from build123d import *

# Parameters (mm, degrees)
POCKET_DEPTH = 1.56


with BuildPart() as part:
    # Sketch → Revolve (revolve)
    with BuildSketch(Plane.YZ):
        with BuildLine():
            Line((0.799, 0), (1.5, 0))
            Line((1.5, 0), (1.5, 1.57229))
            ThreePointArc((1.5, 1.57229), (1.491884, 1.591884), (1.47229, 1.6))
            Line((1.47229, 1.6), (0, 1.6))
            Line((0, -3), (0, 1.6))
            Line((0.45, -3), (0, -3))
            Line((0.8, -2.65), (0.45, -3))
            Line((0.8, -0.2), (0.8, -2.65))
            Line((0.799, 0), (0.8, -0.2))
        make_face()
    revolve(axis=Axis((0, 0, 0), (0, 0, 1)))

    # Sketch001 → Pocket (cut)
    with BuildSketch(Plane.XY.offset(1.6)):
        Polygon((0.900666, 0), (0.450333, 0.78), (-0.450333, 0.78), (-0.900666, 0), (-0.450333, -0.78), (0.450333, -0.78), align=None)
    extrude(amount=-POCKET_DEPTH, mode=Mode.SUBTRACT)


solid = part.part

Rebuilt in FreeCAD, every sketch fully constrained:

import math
import FreeCAD as App
import Part
import Sketcher

V = App.Vector
Q = App.Units.Quantity

doc = App.newDocument("Part")
body = doc.addObject("PartDesign::Body", "Body")

# Sketch on YZ plane
sketch1 = body.newObject("Sketcher::SketchObject", "Sketch")
sketch1.AttachmentSupport = (doc.getObject("YZ_Plane"), [""])
sketch1.MapMode = "FlatFace"
sketch1.addGeometry([
    Part.LineSegment(V(0.799, 0, 0), V(1.5, 0, 0)),  # 0
    Part.LineSegment(V(1.5, 0, 0), V(1.5, 1.572, 0)),  # 1
    Part.ArcOfCircle(Part.Circle(V(1.472, 1.572, 0), V(0, 0, 1), 0.028), math.radians(0), math.radians(90)),  # 2
    Part.LineSegment(V(1.472, 1.6, 0), V(0, 1.6, 0)),  # 3
    Part.LineSegment(V(0, 1.6, 0), V(0, -3, 0)),  # 4
    Part.LineSegment(V(0, -3, 0), V(0.45, -3, 0)),  # 5
    Part.LineSegment(V(0.45, -3, 0), V(0.8, -2.65, 0)),  # 6
    Part.LineSegment(V(0.8, -2.65, 0), V(0.8, -0.2, 0)),  # 7
    Part.LineSegment(V(0.8, -0.2, 0), V(0.799, 0, 0)),  # 8
], False)
sketch1.addConstraint([
    Sketcher.Constraint("Coincident", 0, 2, 1, 1),
    Sketcher.Constraint("Coincident", 1, 2, 2, 1),
    Sketcher.Constraint("Coincident", 2, 2, 3, 1),
    Sketcher.Constraint("Coincident", 3, 2, 4, 1),
    Sketcher.Constraint("Coincident", 4, 2, 5, 1),
    Sketcher.Constraint("Coincident", 5, 2, 6, 1),
    Sketcher.Constraint("Coincident", 6, 2, 7, 1),
    Sketcher.Constraint("Coincident", 7, 2, 8, 1),
    Sketcher.Constraint("Coincident", 8, 2, 0, 1),
    Sketcher.Constraint("Horizontal", 0),
    Sketcher.Constraint("Vertical", 1),
    Sketcher.Constraint("Horizontal", 3),
    Sketcher.Constraint("Vertical", 4),
    Sketcher.Constraint("Horizontal", 5),
    Sketcher.Constraint("Vertical", 7),
    Sketcher.Constraint("PointOnObject", 0, 2, -1),
    Sketcher.Constraint("PointOnObject", 3, 2, -2),
    Sketcher.Constraint("Horizontal", 2, 3, 1, 2),
    Sketcher.Constraint("Angle", 6, Q("45 deg")),
    Sketcher.Constraint("DistanceY", 4, 2, 4, 1, 4.6),
    Sketcher.Constraint("DistanceY", 4, 2, -1, 1, 3.0),
    Sketcher.Constraint("DistanceX", 5, 1, 5, 2, 0.45),
    Sketcher.Constraint("DistanceY", 7, 1, 7, 2, 2.45),
    Sketcher.Constraint("DistanceX", -1, 1, 0, 2, 1.5),
    Sketcher.Constraint("DistanceX", -1, 1, 6, 2, 0.8),
    Sketcher.Constraint("DistanceX", 0, 1, 0, 2, 0.701),
    Sketcher.Constraint("Radius", 2, 0.02771),
    Sketcher.Constraint("DistanceX", 3, 2, 3, 1, 1.47229),
])
revolution = body.newObject("PartDesign::Revolution", "Revolution")
revolution.Profile = sketch1
revolution.ReferenceAxis = (sketch1, ["V_Axis"])
revolution.Angle = 360

# Sketch on XY plane
sketch2 = body.newObject("Sketcher::SketchObject", "Sketch001")
sketch2.AttachmentSupport = (doc.getObject("XY_Plane"), [""])
sketch2.MapMode = "FlatFace"
sketch2.AttachmentOffset = App.Placement(V(0, 0, 1.6), App.Rotation())
sketch2.addGeometry([
    Part.LineSegment(V(0.9, 0, 0), V(0.5, 0.8, 0)),  # 0
    Part.LineSegment(V(0.5, 0.8, 0), V(-0.5, 0.8, 0)),  # 1
    Part.LineSegment(V(-0.5, 0.8, 0), V(-0.9, 0, 0)),  # 2
    Part.LineSegment(V(-0.9, 0, 0), V(-0.5, -0.8, 0)),  # 3
    Part.LineSegment(V(-0.5, -0.8, 0), V(0.5, -0.8, 0)),  # 4
    Part.LineSegment(V(0.5, -0.8, 0), V(0.9, 0, 0)),  # 5
], False)
sketch2.addConstraint([
    Sketcher.Constraint("Coincident", 0, 2, 1, 1),
    Sketcher.Constraint("Coincident", 1, 2, 2, 1),
    Sketcher.Constraint("Coincident", 2, 2, 3, 1),
    Sketcher.Constraint("Coincident", 3, 2, 4, 1),
    Sketcher.Constraint("Coincident", 4, 2, 5, 1),
    Sketcher.Constraint("Coincident", 5, 2, 0, 1),
    Sketcher.Constraint("Horizontal", 1),
    Sketcher.Constraint("Horizontal", 4),
    Sketcher.Constraint("Symmetric", 0, 2, 3, 2, -1, 1),
    Sketcher.Constraint("Symmetric", 2, 2, 5, 2, -1, 1),
    Sketcher.Constraint("PointOnObject", 2, 2, -1),
    Sketcher.Constraint("Parallel", 2, 5),
    Sketcher.Constraint("Vertical", 1, 2, 3, 2),
    Sketcher.Constraint("Angle", 0, Q("119.999988 deg")),
    Sketcher.Constraint("DistanceY", -1, 1, 0, 2, 0.78),
    Sketcher.Constraint("DistanceX", 2, 2, 0, 2, 1.350999),
])
pocket1 = body.newObject("PartDesign::Pocket", "Pocket")
pocket1.Profile = sketch2
pocket1.Length = 1.56

doc.recompute()
